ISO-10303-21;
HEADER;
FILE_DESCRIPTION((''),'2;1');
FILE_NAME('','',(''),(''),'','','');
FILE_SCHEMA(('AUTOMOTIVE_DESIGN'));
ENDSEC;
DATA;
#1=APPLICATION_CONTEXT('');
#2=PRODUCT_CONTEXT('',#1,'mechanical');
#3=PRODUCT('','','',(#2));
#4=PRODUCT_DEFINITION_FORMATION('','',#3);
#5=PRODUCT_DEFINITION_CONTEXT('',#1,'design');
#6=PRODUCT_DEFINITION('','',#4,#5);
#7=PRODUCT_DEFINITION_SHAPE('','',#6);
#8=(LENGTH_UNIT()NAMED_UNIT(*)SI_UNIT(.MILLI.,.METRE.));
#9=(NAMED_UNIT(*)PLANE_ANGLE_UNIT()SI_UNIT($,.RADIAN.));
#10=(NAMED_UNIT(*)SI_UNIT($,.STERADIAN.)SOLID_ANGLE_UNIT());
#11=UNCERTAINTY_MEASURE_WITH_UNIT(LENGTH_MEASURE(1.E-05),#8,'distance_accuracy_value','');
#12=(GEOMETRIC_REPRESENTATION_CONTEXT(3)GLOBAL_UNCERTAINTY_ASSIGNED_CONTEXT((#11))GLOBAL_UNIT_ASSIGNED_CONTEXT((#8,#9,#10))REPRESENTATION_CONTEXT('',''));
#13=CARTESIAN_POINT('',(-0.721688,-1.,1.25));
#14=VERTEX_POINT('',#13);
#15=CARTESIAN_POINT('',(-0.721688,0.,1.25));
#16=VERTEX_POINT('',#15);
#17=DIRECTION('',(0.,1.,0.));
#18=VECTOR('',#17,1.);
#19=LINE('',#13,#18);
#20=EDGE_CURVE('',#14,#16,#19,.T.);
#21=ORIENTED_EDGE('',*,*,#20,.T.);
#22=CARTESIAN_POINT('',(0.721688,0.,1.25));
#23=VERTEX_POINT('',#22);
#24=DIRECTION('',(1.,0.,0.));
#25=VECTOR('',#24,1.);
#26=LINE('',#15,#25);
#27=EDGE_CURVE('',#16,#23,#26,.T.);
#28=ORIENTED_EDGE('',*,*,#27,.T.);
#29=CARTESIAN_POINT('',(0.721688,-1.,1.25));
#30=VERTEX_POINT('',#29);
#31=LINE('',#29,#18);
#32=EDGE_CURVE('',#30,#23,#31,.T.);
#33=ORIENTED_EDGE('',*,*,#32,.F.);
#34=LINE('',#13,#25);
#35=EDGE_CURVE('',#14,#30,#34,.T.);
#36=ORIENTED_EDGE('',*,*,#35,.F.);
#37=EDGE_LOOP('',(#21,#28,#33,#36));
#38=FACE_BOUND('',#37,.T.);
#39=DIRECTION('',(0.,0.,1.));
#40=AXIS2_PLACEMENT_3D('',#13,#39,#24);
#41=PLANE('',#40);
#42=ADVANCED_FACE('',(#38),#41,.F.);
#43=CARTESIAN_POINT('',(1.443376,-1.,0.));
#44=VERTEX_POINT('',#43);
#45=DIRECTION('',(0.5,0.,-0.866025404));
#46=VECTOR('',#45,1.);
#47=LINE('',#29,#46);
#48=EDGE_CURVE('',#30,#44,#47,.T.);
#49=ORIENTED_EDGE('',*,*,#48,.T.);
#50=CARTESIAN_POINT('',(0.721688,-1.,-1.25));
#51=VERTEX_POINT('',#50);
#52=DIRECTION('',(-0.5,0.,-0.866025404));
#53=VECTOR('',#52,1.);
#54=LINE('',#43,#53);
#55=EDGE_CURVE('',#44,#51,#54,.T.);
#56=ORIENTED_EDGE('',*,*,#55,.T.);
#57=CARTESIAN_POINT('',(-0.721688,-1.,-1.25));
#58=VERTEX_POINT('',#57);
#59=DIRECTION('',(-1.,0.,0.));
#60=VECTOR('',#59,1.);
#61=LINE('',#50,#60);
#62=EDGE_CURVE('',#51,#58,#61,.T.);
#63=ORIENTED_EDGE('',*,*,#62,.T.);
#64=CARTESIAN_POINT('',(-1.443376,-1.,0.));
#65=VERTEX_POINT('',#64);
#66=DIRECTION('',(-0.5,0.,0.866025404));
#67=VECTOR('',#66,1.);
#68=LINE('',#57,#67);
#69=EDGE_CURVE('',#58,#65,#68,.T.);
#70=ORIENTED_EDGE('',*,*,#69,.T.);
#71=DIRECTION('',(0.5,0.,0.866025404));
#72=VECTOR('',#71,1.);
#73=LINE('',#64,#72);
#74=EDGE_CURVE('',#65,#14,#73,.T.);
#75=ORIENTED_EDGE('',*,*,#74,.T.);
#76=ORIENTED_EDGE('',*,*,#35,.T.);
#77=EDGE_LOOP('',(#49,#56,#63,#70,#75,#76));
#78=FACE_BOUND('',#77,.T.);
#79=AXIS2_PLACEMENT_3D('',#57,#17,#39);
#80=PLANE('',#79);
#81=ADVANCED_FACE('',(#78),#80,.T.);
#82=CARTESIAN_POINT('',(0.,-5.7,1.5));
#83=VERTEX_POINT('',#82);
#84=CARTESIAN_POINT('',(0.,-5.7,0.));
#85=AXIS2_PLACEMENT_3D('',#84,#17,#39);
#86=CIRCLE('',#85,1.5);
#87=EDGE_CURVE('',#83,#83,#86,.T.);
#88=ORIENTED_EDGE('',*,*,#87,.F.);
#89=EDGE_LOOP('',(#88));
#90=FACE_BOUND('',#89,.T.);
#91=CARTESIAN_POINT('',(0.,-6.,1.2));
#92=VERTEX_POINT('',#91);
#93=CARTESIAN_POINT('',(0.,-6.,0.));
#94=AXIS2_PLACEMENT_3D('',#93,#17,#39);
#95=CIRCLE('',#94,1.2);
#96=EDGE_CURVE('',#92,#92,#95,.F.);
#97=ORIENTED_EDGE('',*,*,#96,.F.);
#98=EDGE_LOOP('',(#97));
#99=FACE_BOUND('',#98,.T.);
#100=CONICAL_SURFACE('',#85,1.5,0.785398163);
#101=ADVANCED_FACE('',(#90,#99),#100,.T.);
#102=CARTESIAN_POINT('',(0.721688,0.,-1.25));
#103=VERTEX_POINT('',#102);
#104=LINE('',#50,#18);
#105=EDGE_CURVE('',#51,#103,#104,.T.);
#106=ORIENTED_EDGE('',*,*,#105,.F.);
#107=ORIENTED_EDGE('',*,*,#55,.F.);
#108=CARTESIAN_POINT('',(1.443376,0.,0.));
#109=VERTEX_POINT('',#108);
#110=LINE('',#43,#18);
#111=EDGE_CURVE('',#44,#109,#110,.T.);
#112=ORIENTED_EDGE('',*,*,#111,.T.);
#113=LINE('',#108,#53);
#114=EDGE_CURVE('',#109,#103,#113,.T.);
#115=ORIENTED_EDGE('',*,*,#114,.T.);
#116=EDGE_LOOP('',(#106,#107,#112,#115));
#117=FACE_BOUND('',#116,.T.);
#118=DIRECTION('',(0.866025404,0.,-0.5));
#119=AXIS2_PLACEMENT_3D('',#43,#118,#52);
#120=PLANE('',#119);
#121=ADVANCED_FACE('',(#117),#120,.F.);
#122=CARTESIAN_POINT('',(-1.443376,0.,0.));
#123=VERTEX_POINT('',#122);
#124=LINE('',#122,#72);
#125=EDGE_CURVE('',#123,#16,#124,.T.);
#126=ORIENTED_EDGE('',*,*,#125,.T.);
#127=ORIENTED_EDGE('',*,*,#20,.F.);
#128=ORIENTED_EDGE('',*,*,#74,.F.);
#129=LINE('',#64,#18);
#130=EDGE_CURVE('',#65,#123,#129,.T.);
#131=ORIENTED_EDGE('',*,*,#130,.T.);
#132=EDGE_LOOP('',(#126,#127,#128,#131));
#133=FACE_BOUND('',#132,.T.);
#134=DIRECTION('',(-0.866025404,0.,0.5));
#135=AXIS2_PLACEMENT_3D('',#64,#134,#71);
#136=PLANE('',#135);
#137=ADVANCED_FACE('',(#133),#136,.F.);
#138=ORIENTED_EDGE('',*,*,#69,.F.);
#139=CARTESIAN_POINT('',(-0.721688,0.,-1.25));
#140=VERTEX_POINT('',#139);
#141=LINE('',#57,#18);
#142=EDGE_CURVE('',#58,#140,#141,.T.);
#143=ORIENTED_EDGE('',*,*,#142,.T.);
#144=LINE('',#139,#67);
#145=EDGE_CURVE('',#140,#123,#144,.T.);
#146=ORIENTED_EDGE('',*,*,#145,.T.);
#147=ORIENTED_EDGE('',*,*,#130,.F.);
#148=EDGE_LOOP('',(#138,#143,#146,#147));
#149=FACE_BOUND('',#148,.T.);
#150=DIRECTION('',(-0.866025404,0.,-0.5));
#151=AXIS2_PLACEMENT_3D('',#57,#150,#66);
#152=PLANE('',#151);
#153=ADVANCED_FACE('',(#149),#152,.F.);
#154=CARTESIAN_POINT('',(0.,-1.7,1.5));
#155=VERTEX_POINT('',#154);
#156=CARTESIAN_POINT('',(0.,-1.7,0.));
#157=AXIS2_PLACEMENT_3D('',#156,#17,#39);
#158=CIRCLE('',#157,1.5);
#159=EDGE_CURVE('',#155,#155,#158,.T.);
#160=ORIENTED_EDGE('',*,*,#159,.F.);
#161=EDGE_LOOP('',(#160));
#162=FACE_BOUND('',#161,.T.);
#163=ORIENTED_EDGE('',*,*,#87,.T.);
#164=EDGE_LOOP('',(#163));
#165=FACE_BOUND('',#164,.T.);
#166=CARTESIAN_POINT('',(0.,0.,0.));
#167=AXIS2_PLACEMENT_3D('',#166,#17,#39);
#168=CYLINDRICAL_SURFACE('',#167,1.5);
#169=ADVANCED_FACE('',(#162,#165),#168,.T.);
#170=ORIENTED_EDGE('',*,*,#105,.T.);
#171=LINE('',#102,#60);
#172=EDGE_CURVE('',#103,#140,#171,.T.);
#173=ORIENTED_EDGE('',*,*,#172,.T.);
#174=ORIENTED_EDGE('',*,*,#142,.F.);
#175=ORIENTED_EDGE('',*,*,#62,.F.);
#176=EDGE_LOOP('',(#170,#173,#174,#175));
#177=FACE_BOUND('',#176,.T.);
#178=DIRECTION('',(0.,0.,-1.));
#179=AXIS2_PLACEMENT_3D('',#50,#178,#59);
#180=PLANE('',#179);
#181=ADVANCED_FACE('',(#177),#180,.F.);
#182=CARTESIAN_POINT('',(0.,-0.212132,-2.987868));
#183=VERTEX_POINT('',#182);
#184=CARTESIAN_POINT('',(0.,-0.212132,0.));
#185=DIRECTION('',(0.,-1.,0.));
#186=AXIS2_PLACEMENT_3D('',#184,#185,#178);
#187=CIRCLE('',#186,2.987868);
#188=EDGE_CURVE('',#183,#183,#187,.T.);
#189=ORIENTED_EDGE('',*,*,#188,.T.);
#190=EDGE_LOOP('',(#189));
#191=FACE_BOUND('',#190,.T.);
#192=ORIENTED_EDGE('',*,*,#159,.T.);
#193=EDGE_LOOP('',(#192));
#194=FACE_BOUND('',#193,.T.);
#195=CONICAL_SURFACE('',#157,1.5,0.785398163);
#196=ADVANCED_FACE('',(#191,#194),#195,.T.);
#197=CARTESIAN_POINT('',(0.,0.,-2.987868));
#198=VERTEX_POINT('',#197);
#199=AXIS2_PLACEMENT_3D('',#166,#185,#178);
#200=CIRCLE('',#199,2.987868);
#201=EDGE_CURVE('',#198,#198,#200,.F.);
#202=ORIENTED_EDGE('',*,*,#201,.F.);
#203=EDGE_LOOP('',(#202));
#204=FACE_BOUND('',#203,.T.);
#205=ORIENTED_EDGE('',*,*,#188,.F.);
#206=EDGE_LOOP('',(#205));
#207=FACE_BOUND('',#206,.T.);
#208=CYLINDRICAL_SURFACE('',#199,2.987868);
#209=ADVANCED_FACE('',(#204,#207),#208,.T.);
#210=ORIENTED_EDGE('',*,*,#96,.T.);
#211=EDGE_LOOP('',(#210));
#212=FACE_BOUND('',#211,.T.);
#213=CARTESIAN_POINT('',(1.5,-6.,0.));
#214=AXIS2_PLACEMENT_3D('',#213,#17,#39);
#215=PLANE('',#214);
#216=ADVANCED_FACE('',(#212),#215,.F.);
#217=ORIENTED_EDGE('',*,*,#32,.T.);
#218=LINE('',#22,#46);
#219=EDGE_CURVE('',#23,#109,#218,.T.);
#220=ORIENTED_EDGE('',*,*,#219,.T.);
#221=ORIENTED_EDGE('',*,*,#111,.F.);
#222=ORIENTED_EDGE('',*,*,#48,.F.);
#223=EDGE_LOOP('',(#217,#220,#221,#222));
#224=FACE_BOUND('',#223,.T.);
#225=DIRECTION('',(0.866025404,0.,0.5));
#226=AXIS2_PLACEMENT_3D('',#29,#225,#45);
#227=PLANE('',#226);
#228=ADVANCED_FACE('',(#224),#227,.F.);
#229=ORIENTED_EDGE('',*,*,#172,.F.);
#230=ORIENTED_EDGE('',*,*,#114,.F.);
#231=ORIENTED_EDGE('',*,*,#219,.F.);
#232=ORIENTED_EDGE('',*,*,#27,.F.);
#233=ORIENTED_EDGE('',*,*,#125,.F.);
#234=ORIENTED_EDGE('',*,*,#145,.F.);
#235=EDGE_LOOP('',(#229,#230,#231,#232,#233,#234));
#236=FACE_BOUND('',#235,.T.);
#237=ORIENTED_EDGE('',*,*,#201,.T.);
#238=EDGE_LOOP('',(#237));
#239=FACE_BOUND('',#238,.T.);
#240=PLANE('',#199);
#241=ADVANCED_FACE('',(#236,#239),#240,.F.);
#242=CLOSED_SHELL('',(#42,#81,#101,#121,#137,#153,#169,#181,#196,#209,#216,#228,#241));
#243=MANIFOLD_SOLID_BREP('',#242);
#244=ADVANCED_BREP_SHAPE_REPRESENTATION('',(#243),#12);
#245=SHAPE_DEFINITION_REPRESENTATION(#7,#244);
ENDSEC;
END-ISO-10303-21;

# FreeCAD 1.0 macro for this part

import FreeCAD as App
import Part
import Sketcher

V = App.Vector
Q = App.Units.Quantity


def edges_at(feature, points):
    """Names of the edges that pass closest to the given points."""
    edges = feature.Shape.Edges
    near = lambda p: min(range(len(edges)), key=lambda i: edges[i].distToShape(Part.Vertex(*p))[0])
    return sorted({f"Edge{near(p) + 1}" for p in points})

doc = App.newDocument("Part")
body = doc.addObject("PartDesign::Body", "Body")

# Sketch on XY plane
sketch1 = body.newObject("Sketcher::SketchObject", "Sketch")
sketch1.AttachmentSupport = (doc.getObject("XY_Plane"), [""])
sketch1.MapMode = "FlatFace"
sketch1.addGeometry([
    Part.LineSegment(V(3.2, 0, 0), V(0, 0, 0)),  # 0
    Part.LineSegment(V(0, 0, 0), V(0, -6, 0)),  # 1
    Part.LineSegment(V(0, -6, 0), V(1.5, -6, 0)),  # 2
    Part.LineSegment(V(1.5, -6, 0), V(1.5, -1.7, 0)),  # 3
    Part.LineSegment(V(1.5, -1.7, 0), V(3.2, 0, 0)),  # 4
], False)
sketch1.addConstraint([
    Sketcher.Constraint("Coincident", 0, 2, 1, 1),
    Sketcher.Constraint("Coincident", 1, 2, 2, 1),
    Sketcher.Constraint("Coincident", 2, 2, 3, 1),
    Sketcher.Constraint("Coincident", 3, 2, 4, 1),
    Sketcher.Constraint("Coincident", 4, 2, 0, 1),
    Sketcher.Constraint("Horizontal", 0),
    Sketcher.Constraint("Vertical", 1),
    Sketcher.Constraint("Horizontal", 2),
    Sketcher.Constraint("Vertical", 3),
    Sketcher.Constraint("Coincident", 0, 2, -1, 1),
    Sketcher.Constraint("DistanceY", 1, 2, 1, 1, 6.0),
    Sketcher.Constraint("Angle", 4, Q("45 deg")),
    Sketcher.Constraint("DistanceX", 0, 2, 0, 1, 3.2),
    Sketcher.Constraint("DistanceX", 2, 1, 2, 2, 1.5),
])
revolution = body.newObject("PartDesign::Revolution", "Revolution")
revolution.Profile = sketch1
revolution.ReferenceAxis = (sketch1, ["V_Axis"])
revolution.Angle = 360
doc.recompute()

chamfer = body.newObject("PartDesign::Chamfer", "Chamfer")
chamfer.Base = (revolution, edges_at(revolution, [(0, 0, -3.2)]))
chamfer.ChamferType = "Two distances"
chamfer.Size = 0.3
chamfer.Size2 = 0.212132
chamfer.FlipDirection = True
doc.recompute()

chamfer2 = body.newObject("PartDesign::Chamfer", "Chamfer001")
chamfer2.Base = (chamfer, edges_at(chamfer, [(0, -6, -1.5)]))
chamfer2.Size = 0.3

# Sketch on XZ plane
sketch2 = body.newObject("Sketcher::SketchObject", "Sketch001")
sketch2.AttachmentSupport = (doc.getObject("XZ_Plane"), [""])
sketch2.MapMode = "FlatFace"
sketch2.addGeometry([
    Part.LineSegment(V(-0.7, -1.2, 0), V(-1.4, 0, 0)),  # 0
    Part.LineSegment(V(-1.4, 0, 0), V(-0.7, 1.2, 0)),  # 1
    Part.LineSegment(V(-0.7, 1.2, 0), V(0.7, 1.2, 0)),  # 2
    Part.LineSegment(V(0.7, 1.2, 0), V(1.4, 0, 0)),  # 3
    Part.LineSegment(V(1.4, 0, 0), V(0.7, -1.2, 0)),  # 4
    Part.LineSegment(V(0.7, -1.2, 0), V(-0.7, -1.2, 0)),  # 5
], False)
sketch2.addConstraint([
    Sketcher.Constraint("Coincident", 0, 2, 1, 1),
    Sketcher.Constraint("Coincident", 1, 2, 2, 1),
    Sketcher.Constraint("Coincident", 2, 2, 3, 1),
    Sketcher.Constraint("Coincident", 3, 2, 4, 1),
    Sketcher.Constraint("Coincident", 4, 2, 5, 1),
    Sketcher.Constraint("Coincident", 5, 2, 0, 1),
    Sketcher.Constraint("Horizontal", 2),
    Sketcher.Constraint("Horizontal", 5),
    Sketcher.Constraint("Symmetric", 0, 2, 3, 2, -1, 1),
    Sketcher.Constraint("Symmetric", 1, 2, 4, 2, -1, 1),
    Sketcher.Constraint("PointOnObject", 0, 2, -1),
    Sketcher.Constraint("Parallel", 0, 3),
    Sketcher.Constraint("Vertical", 2, 2, 4, 2),
    Sketcher.Constraint("Angle", 0, Q("120 deg")),
    Sketcher.Constraint("DistanceY", 4, 2, 2, 2, 2.5),
    Sketcher.Constraint("DistanceX", 2, 1, 2, 2, 1.443376),
])
pocket1 = body.newObject("PartDesign::Pocket", "Pocket")
pocket1.Profile = sketch2
pocket1.Length = 1
pocket1.Reversed = True

doc.recompute()
